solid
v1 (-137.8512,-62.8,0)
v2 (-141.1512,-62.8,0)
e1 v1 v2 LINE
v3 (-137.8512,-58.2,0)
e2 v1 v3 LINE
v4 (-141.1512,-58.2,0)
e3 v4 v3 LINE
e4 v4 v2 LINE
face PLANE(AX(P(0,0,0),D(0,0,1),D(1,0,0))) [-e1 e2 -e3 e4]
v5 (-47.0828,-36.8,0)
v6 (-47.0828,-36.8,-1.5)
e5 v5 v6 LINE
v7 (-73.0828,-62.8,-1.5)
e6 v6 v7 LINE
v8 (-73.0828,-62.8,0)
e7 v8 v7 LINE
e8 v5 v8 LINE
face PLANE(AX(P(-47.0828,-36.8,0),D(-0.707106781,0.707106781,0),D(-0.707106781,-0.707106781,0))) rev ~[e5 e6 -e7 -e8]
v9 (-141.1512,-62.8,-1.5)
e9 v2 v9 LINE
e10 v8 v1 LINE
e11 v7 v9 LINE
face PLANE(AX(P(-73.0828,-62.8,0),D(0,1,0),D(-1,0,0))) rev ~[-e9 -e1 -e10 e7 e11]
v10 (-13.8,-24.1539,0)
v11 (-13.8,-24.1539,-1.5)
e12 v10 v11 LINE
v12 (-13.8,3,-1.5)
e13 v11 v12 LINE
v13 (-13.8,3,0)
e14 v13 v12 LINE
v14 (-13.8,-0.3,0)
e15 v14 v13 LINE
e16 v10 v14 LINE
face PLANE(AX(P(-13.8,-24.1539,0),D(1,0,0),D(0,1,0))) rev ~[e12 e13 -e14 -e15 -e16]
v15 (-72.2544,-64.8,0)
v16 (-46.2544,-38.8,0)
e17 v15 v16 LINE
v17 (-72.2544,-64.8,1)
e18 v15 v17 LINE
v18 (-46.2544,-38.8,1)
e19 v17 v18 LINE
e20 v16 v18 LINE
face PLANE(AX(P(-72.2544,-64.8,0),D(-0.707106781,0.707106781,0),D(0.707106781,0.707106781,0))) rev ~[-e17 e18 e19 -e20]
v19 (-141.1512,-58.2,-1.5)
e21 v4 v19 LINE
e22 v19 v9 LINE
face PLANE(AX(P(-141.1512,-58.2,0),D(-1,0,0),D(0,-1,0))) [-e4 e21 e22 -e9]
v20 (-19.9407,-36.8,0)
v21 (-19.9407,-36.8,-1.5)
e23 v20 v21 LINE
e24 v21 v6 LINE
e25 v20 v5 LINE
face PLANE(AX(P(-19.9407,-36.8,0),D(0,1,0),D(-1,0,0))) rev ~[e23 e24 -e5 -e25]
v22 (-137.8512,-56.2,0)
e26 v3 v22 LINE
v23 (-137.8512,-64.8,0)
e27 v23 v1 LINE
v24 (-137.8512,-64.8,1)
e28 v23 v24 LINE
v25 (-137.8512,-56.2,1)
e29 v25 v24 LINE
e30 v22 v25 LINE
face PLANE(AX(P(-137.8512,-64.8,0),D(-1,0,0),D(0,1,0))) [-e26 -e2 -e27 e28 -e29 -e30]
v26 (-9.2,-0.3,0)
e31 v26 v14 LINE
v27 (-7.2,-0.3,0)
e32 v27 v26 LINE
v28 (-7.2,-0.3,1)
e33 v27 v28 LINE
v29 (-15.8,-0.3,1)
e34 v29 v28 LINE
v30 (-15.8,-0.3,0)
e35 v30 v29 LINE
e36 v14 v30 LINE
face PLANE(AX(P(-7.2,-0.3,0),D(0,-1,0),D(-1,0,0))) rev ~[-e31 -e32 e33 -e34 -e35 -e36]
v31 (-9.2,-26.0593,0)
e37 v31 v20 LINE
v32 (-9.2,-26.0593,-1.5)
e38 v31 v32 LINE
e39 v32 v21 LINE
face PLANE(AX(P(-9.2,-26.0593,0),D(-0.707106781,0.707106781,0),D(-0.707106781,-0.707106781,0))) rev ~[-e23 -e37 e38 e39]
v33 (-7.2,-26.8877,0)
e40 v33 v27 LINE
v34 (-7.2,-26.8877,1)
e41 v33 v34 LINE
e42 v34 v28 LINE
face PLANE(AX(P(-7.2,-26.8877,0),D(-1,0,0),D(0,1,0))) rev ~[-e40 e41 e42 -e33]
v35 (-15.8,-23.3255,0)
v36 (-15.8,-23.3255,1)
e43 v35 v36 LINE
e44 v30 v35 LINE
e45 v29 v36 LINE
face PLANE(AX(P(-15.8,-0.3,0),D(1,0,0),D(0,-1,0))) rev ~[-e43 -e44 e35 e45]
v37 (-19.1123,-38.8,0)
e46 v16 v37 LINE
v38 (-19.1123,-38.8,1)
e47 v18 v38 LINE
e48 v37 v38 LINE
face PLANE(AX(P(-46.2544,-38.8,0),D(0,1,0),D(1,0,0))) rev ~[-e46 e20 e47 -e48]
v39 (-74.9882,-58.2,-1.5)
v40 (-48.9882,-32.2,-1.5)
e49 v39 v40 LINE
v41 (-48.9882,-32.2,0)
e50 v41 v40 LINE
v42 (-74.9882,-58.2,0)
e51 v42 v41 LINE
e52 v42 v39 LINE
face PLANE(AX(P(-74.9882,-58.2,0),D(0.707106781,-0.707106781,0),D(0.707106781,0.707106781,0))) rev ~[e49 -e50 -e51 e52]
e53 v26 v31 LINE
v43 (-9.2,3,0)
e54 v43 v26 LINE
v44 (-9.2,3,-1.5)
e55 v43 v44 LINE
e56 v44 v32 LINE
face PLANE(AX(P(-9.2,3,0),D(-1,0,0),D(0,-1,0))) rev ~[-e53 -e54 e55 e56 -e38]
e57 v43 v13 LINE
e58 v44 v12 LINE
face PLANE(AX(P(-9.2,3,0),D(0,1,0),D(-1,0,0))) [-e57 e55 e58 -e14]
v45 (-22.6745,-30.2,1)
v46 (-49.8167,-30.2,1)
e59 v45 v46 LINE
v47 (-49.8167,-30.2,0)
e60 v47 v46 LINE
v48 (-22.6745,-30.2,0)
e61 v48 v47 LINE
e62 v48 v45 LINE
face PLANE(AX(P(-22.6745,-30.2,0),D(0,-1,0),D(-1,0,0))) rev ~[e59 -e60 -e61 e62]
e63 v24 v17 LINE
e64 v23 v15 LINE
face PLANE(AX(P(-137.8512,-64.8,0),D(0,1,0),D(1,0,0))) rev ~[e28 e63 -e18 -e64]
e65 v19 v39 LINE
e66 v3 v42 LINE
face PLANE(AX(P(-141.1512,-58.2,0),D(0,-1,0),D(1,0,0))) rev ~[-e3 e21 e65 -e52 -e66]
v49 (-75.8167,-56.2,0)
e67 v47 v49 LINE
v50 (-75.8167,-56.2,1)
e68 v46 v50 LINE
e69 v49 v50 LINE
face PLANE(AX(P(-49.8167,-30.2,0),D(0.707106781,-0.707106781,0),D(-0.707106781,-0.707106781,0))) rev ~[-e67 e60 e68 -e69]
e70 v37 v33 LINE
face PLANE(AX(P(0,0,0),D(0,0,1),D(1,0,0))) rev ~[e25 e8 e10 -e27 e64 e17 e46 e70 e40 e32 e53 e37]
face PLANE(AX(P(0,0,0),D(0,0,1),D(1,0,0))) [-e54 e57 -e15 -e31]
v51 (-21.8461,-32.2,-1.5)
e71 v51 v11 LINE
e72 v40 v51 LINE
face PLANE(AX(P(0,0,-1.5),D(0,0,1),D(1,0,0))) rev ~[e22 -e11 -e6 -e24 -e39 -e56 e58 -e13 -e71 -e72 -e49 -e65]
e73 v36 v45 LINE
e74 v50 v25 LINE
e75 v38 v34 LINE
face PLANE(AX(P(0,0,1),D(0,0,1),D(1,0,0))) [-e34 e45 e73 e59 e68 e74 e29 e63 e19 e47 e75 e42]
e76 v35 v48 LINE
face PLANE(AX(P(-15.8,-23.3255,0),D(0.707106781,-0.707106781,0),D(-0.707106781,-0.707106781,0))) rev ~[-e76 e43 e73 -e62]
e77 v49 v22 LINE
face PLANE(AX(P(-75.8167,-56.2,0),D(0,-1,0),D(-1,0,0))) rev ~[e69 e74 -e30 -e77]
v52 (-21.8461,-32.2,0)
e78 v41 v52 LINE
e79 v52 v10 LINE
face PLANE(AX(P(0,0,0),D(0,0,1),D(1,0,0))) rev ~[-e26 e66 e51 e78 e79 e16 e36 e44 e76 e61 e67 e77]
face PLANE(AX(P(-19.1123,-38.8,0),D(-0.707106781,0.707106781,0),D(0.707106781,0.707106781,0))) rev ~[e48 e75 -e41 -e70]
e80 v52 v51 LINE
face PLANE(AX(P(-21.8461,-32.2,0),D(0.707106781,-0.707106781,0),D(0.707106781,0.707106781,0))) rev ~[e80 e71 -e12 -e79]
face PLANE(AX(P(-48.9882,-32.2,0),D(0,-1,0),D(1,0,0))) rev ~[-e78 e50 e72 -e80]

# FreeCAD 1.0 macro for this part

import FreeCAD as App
import Part
import Sketcher

V = App.Vector
Q = App.Units.Quantity

doc = App.newDocument("Part")
body = doc.addObject("PartDesign::Body", "Body")

# Sketch on XY plane
sketch1 = body.newObject("Sketcher::SketchObject", "Sketch")
sketch1.AttachmentSupport = (doc.getObject("XY_Plane"), [""])
sketch1.MapMode = "FlatFace"
sketch1.addGeometry(Part.LineSegment(V(-75, -58.2, 0), V(-141.2, -58.2, 0)), False)
sketch1.addGeometry(Part.LineSegment(V(-141.2, -58.2, 0), V(-141.2, -62.8, 0)), False)
sketch1.addGeometry(Part.LineSegment(V(-141.2, -62.8, 0), V(-73.1, -62.8, 0)), False)
sketch1.addGeometry(Part.LineSegment(V(-73.1, -62.8, 0), V(-47.1, -36.8, 0)), False)
sketch1.addGeometry(Part.LineSegment(V(-47.1, -36.8, 0), V(-19.9, -36.8, 0)), False)
sketch1.addGeometry(Part.LineSegment(V(-19.9, -36.8, 0), V(-9.2, -26.1, 0)), False)
sketch1.addGeometry(Part.LineSegment(V(-9.2, -26.1, 0), V(-9.2, 3, 0)), False)
sketch1.addGeometry(Part.LineSegment(V(-9.2, 3, 0), V(-13.8, 3, 0)), False)
sketch1.addGeometry(Part.LineSegment(V(-13.8, 3, 0), V(-13.8, -24.2, 0)), False)
sketch1.addGeometry(Part.LineSegment(V(-13.8, -24.2, 0), V(-21.8, -32.2, 0)), False)
sketch1.addGeometry(Part.LineSegment(V(-21.8, -32.2, 0), V(-49, -32.2, 0)), False)
sketch1.addGeometry(Part.LineSegment(V(-49, -32.2, 0), V(-75, -58.2, 0)), False)
sketch1.addConstraint(Sketcher.Constraint("Coincident", 0, 2, 1, 1))
sketch1.addConstraint(Sketcher.Constraint("Coincident", 1, 2, 2, 1))
sketch1.addConstraint(Sketcher.Constraint("Coincident", 2, 2, 3, 1))
sketch1.addConstraint(Sketcher.Constraint("Coincident", 3, 2, 4, 1))
sketch1.addConstraint(Sketcher.Constraint("Coincident", 4, 2, 5, 1))
sketch1.addConstraint(Sketcher.Constraint("Coincident", 5, 2, 6, 1))
sketch1.addConstraint(Sketcher.Constraint("Coincident", 6, 2, 7, 1))
sketch1.addConstraint(Sketcher.Constraint("Coincident", 7, 2, 8, 1))
sketch1.addConstraint(Sketcher.Constraint("Coincident", 8, 2, 9, 1))
sketch1.addConstraint(Sketcher.Constraint("Coincident", 9, 2, 10, 1))
sketch1.addConstraint(Sketcher.Constraint("Coincident", 10, 2, 11, 1))
sketch1.addConstraint(Sketcher.Constraint("Coincident", 11, 2, 0, 1))
sketch1.addConstraint(Sketcher.Constraint("Horizontal", 0))
sketch1.addConstraint(Sketcher.Constraint("Vertical", 1))
sketch1.addConstraint(Sketcher.Constraint("Horizontal", 2))
sketch1.addConstraint(Sketcher.Constraint("Horizontal", 4))
sketch1.addConstraint(Sketcher.Constraint("Vertical", 6))
sketch1.addConstraint(Sketcher.Constraint("Horizontal", 7))
sketch1.addConstraint(Sketcher.Constraint("Vertical", 8))
sketch1.addConstraint(Sketcher.Constraint("Horizontal", 10))
sketch1.addConstraint(Sketcher.Constraint("Parallel", 3, 5))
sketch1.addConstraint(Sketcher.Constraint("Parallel", 5, 9))
sketch1.addConstraint(Sketcher.Constraint("Parallel", 9, 11))
sketch1.addConstraint(Sketcher.Constraint("Equal", 4, 10))
sketch1.addConstraint(Sketcher.Constraint("Equal", 7, 1))
sketch1.addConstraint(Sketcher.Constraint("Equal", 3, 11))
sketch1.addConstraint(Sketcher.Constraint("Angle", 3, Q("45 deg")))
sketch1.addConstraint(Sketcher.Constraint("DistanceX", 7, 2, 7, 1, Q("4.6 mm")))
sketch1.addConstraint(Sketcher.Constraint("DistanceY", -1, 1, 6, 2, Q("3 mm")))
sketch1.addConstraint(Sketcher.Constraint("DistanceX", 2, 2, 3, 2, Q("26 mm")))
sketch1.addConstraint(Sketcher.Constraint("DistanceY", 0, 2, -1, 1, Q("58.2 mm")))
sketch1.addConstraint(Sketcher.Constraint("DistanceX", 5, 2, -1, 1, Q("9.2 mm")))
sketch1.addConstraint(Sketcher.Constraint("DistanceX", 0, 2, 0, 1, Q("66.163 mm")))
sketch1.addConstraint(Sketcher.Constraint("DistanceX", 4, 1, 4, 2, Q("27.142 mm")))
sketch1.addConstraint(Sketcher.Constraint("DistanceY", 8, 2, 8, 1, Q("27.154 mm")))
sketch1.addConstraint(Sketcher.Constraint("DistanceX", 2, 1, 2, 2, Q("68.0684 mm")))
pad1 = body.newObject("PartDesign::Pad", "Pad")
pad1.Profile = sketch1
pad1.Length = 1.5
pad1.Reversed = True

# Sketch on XY plane
sketch2 = body.newObject("Sketcher::SketchObject", "Sketch001")
sketch2.AttachmentSupport = (doc.getObject("XY_Plane"), [""])
sketch2.MapMode = "FlatFace"
sketch2.addGeometry(Part.LineSegment(V(-7, 0, 0), V(-16, 0, 0)), False)
sketch2.addGeometry(Part.LineSegment(V(-16, 0, 0), V(-16, -23, 0)), False)
sketch2.addGeometry(Part.LineSegment(V(-16, -23, 0), V(-23, -30, 0)), False)
sketch2.addGeometry(Part.LineSegment(V(-23, -30, 0), V(-50, -30, 0)), False)
sketch2.addGeometry(Part.LineSegment(V(-50, -30, 0), V(-76, -56, 0)), False)
sketch2.addGeometry(Part.LineSegment(V(-76, -56, 0), V(-138, -56, 0)), False)
sketch2.addGeometry(Part.LineSegment(V(-138, -56, 0), V(-138, -65, 0)), False)
sketch2.addGeometry(Part.LineSegment(V(-138, -65, 0), V(-72, -65, 0)), False)
sketch2.addGeometry(Part.LineSegment(V(-72, -65, 0), V(-46, -39, 0)), False)
sketch2.addGeometry(Part.LineSegment(V(-46, -39, 0), V(-19, -39, 0)), False)
sketch2.addGeometry(Part.LineSegment(V(-19, -39, 0), V(-7, -27, 0)), False)
sketch2.addGeometry(Part.LineSegment(V(-7, -27, 0), V(-7, 0, 0)), False)
sketch2.addConstraint(Sketcher.Constraint("Coincident", 0, 2, 1, 1))
sketch2.addConstraint(Sketcher.Constraint("Coincident", 1, 2, 2, 1))
sketch2.addConstraint(Sketcher.Constraint("Coincident", 2, 2, 3, 1))
sketch2.addConstraint(Sketcher.Constraint("Coincident", 3, 2, 4, 1))
sketch2.addConstraint(Sketcher.Constraint("Coincident", 4, 2, 5, 1))
sketch2.addConstraint(Sketcher.Constraint("Coincident", 5, 2, 6, 1))
sketch2.addConstraint(Sketcher.Constraint("Coincident", 6, 2, 7, 1))
sketch2.addConstraint(Sketcher.Constraint("Coincident", 7, 2, 8, 1))
sketch2.addConstraint(Sketcher.Constraint("Coincident", 8, 2, 9, 1))
sketch2.addConstraint(Sketcher.Constraint("Coincident", 9, 2, 10, 1))
sketch2.addConstraint(Sketcher.Constraint("Coincident", 10, 2, 11, 1))
sketch2.addConstraint(Sketcher.Constraint("Coincident", 11, 2, 0, 1))
sketch2.addConstraint(Sketcher.Constraint("Horizontal", 0))
sketch2.addConstraint(Sketcher.Constraint("Vertical", 1))
sketch2.addConstraint(Sketcher.Constraint("Horizontal", 3))
sketch2.addConstraint(Sketcher.Constraint("Horizontal", 5))
sketch2.addConstraint(Sketcher.Constraint("Vertical", 6))
sketch2.addConstraint(Sketcher.Constraint("Horizontal", 7))
sketch2.addConstraint(Sketcher.Constraint("Horizontal", 9))
sketch2.addConstraint(Sketcher.Constraint("Vertical", 11))
sketch2.addConstraint(Sketcher.Constraint("Parallel", 2, 4))
sketch2.addConstraint(Sketcher.Constraint("Parallel", 4, 8))
sketch2.addConstraint(Sketcher.Constraint("Parallel", 8, 10))
sketch2.addConstraint(Sketcher.Constraint("Equal", 3, 9))
sketch2.addConstraint(Sketcher.Constraint("Equal", 0, 6))
sketch2.addConstraint(Sketcher.Constraint("Equal", 4, 8))
sketch2.addConstraint(Sketcher.Constraint("DistanceY", 0, 2, -1, 1, Q("0.3 mm")))
sketch2.addConstraint(Sketcher.Constraint("Angle", 2, Q("-135 deg")))
sketch2.addConstraint(Sketcher.Constraint("DistanceX", 0, 2, 0, 1, Q("8.6 mm")))
sketch2.addConstraint(Sketcher.Constraint("DistanceX", 4, 2, 3, 2, Q("26 mm")))
sketch2.addConstraint(Sketcher.Constraint("DistanceX", 0, 2, -1, 1, Q("15.8 mm")))
sketch2.addConstraint(Sketcher.Constraint("DistanceY", 2, 2, -1, 1, Q("30.2 mm")))
sketch2.addConstraint(Sketcher.Constraint("DistanceX", 9, 1, 9, 2, Q("27.142 mm")))
sketch2.addConstraint(Sketcher.Constraint("DistanceX", 7, 2, 2, 2, Q("49.58 mm")))
sketch2.addConstraint(Sketcher.Constraint("Distance", 2, Q("9.722 mm")))
sketch2.addConstraint(Sketcher.Constraint("DistanceX", 5, 2, 5, 1, Q("62.0345 mm")))
pad2 = body.newObject("PartDesign::Pad", "Pad001")
pad2.Profile = sketch2
pad2.Length = 1

doc.recompute()
